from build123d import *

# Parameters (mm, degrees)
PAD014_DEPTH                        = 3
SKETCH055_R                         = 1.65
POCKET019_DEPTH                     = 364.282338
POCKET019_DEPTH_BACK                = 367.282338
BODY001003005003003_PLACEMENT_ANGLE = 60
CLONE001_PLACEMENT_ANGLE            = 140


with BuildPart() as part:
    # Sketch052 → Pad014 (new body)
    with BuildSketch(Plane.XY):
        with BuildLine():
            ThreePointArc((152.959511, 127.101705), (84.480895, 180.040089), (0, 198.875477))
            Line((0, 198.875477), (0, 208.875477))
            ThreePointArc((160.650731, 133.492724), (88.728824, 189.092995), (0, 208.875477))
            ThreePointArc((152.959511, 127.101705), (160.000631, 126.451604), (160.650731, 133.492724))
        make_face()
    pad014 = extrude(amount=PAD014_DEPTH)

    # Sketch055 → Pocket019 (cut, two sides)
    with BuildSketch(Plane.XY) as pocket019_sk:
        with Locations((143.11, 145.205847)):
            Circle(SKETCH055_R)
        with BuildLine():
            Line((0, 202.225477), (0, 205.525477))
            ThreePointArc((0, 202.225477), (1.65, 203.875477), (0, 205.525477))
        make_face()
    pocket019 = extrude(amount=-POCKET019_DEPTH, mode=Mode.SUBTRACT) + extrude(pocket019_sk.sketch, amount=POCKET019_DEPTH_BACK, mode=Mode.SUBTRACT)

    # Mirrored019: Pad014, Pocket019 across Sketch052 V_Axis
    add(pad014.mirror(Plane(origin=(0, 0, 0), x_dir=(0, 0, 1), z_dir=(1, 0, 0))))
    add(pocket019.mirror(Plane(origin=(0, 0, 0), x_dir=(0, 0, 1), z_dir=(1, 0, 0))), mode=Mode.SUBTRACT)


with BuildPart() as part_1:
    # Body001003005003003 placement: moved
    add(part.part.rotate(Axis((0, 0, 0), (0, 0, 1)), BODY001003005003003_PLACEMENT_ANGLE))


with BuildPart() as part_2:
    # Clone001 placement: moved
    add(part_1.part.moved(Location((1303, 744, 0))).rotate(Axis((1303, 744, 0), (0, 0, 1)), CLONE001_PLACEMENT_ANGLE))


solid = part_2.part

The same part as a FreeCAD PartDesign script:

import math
import FreeCAD as App
import Part
import Sketcher
from FreeCAD import Vector

doc = App.newDocument("Part")
body = doc.addObject("PartDesign::Body", "Body")

sketch1 = body.newObject("Sketcher::SketchObject", "Sketch")
sketch1.AttachmentSupport = (doc.getObject("XY_Plane"), [""])
sketch1.MapMode = "FlatFace"
sketch1.addGeometry([
    Part.ArcOfCircle(Part.Circle(Vector(0, 0, 0), Vector(0, 0, 1), 198.9), math.radians(40), math.radians(90)),
    Part.ArcOfCircle(Part.Circle(Vector(156.8, 130.3, 0), Vector(0, 0, 1), 5), math.radians(-140), math.radians(40)),
    Part.ArcOfCircle(Part.Circle(Vector(0, 0, 0), Vector(0, 0, 1), 208.9), math.radians(40), math.radians(90)),
    Part.LineSegment(Vector(0, 208.9, 0), Vector(0, 198.9, 0)),
], False)
sketch1.addConstraint([
    Sketcher.Constraint("Tangent", 0, 1, 1, 1),
    Sketcher.Constraint("Tangent", 1, 2, 2, 1),
    Sketcher.Constraint("Coincident", 2, 2, 3, 1),
    Sketcher.Constraint("Coincident", 3, 2, 0, 2),
    Sketcher.Constraint("Vertical", 3),
    Sketcher.Constraint("Coincident", 0, 3, -1, 1),
    Sketcher.Constraint("Coincident", 2, 3, -1, 1),
    Sketcher.Constraint("PointOnObject", 2, 2, -2),
    Sketcher.Constraint("Radius", 1, 5.0),
    Sketcher.Constraint("Radius", 0, 198.87548),
    Sketcher.Constraint("DistanceY", 2, 3, 0, 1, 127.101701),
])
pad1 = body.newObject("PartDesign::Pad", "Pad")
pad1.Profile = sketch1
pad1.Length = 3

sketch2 = body.newObject("Sketcher::SketchObject", "Sketch001")
sketch2.AttachmentSupport = (doc.getObject("XY_Plane"), [""])
sketch2.MapMode = "FlatFace"
sketch2.addGeometry([
    Part.Circle(Vector(143.1, 145.2, 0), Vector(0, 0, 1), 1.6),
    Part.LineSegment(Vector(0, 205.5, 0), Vector(0, 202.2, 0)),
    Part.ArcOfCircle(Part.Circle(Vector(0, 203.9, 0), Vector(0, 0, 1), 1.6), math.radians(-90), math.radians(90)),
], False)
sketch2.addConstraint([
    Sketcher.Constraint("Coincident", 1, 1, 2, 2),
    Sketcher.Constraint("Coincident", 2, 1, 1, 2),
    Sketcher.Constraint("Vertical", 1),
    Sketcher.Constraint("Equal", 0, 2),
    Sketcher.Constraint("PointOnObject", 2, 3, -2),
    Sketcher.Constraint("PointOnObject", 1, 1, -2),
    Sketcher.Constraint("Diameter", 0, 3.3),
    Sketcher.Constraint("DistanceX", -1, 1, 0, 3, 143.11),
    Sketcher.Constraint("DistanceY", 0, 3, 2, 3, 58.66963),
    Sketcher.Constraint("DistanceY", -1, 1, 0, 3, 145.205847),
])
pocket1 = body.newObject("PartDesign::Pocket", "Pocket")
pocket1.Profile = sketch2
pocket1.Type = "ThroughAll"
pocket1.Midplane = True
doc.recompute()

mirrored = body.newObject("PartDesign::Mirrored", "Mirrored")
mirrored.Originals = [pad1, pocket1]
mirrored.MirrorPlane = (doc.getObject("YZ_Plane"), [""])
body.Tip = mirrored
body2 = doc.addObject("PartDesign::Body", "Body001")
doc.recompute()

body.Placement = App.Placement(Vector(0, 0, 0), App.Rotation(Vector(0, 0, 1), 60))
boolean = body2.newObject("PartDesign::Boolean", "Boolean")
boolean.Type = "Fuse"
boolean.addObjects([body])
body3 = doc.addObject("PartDesign::Body", "Body002")
doc.recompute()

body2.Placement = App.Placement(Vector(1303, 744, 0), App.Rotation(Vector(0, 0, 1), 140))
boolean2 = body3.newObject("PartDesign::Boolean", "Boolean001")
boolean2.Type = "Fuse"
boolean2.addObjects([body2])

doc.recompute()
